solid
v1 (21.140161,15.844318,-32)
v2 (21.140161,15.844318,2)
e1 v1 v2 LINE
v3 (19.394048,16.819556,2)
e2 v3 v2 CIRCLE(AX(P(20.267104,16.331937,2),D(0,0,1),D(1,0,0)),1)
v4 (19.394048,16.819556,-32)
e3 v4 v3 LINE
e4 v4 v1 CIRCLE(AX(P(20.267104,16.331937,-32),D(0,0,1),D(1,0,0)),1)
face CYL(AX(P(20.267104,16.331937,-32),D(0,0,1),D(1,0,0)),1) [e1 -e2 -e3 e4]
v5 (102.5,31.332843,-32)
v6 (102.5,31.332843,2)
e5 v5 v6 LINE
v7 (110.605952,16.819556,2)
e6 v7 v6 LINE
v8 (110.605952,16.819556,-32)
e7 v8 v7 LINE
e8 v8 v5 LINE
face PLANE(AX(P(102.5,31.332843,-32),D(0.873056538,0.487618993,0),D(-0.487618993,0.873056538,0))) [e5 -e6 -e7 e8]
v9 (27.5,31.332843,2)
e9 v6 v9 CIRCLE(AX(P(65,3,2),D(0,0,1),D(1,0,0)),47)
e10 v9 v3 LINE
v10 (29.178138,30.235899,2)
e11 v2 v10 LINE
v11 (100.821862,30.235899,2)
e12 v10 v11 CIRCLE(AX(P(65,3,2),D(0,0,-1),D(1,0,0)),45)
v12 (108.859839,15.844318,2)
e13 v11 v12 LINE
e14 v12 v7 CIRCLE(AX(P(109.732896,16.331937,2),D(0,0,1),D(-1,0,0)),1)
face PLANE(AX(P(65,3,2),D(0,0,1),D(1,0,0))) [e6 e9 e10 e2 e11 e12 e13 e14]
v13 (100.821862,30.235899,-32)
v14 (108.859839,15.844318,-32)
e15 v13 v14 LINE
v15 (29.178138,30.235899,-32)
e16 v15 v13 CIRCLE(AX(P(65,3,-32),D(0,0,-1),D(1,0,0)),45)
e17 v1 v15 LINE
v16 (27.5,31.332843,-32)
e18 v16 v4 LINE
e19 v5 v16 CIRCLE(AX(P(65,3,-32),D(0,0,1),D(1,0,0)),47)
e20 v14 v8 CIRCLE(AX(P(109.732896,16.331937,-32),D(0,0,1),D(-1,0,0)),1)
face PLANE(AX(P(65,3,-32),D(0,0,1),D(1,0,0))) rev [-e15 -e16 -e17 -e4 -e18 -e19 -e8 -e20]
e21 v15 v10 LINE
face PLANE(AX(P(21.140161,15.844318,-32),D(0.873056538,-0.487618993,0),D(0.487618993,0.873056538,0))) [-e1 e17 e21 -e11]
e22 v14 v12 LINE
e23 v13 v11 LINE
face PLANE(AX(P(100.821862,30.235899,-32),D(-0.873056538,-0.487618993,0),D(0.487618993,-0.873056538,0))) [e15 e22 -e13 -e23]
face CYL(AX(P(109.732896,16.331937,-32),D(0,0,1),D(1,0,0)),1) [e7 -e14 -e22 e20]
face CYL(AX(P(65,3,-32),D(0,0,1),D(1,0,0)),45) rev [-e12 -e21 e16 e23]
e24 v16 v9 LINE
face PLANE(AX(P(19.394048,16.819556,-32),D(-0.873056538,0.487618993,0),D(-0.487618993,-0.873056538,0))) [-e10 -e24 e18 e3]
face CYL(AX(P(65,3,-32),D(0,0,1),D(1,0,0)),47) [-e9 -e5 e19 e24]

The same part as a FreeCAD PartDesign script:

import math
import FreeCAD as App
import Part
import Sketcher

V = App.Vector

doc = App.newDocument("Part")
body = doc.addObject("PartDesign::Body", "Body")

# Sketch on XY plane
sketch1 = body.newObject("Sketcher::SketchObject", "Sketch")
sketch1.AttachmentSupport = (doc.getObject("XY_Plane"), [""])
sketch1.MapMode = "FlatFace"
sketch1.addGeometry(Part.LineSegment(V(110.6, 16.8, 0), V(102.5, 31.3, 0)), False)
sketch1.addGeometry(Part.ArcOfCircle(Part.Circle(V(65, 3, 0), V(0, 0, 1), 47), math.radians(37), math.radians(143)), False)
sketch1.addGeometry(Part.LineSegment(V(27.5, 31.3, 0), V(19.4, 16.8, 0)), False)
sketch1.addGeometry(Part.ArcOfCircle(Part.Circle(V(20.3, 16.3, 0), V(0, 0, 1), 1), math.radians(151), math.radians(331)), False)
sketch1.addGeometry(Part.LineSegment(V(21.1, 15.8, 0), V(29.2, 30.2, 0)), False)
sketch1.addGeometry(Part.ArcOfCircle(Part.Circle(V(65, 3, 0), V(0, 0, 1), 45), math.radians(37), math.radians(143)), False)
sketch1.addGeometry(Part.LineSegment(V(100.8, 30.2, 0), V(108.9, 15.8, 0)), False)
sketch1.addGeometry(Part.ArcOfCircle(Part.Circle(V(109.7, 16.3, 0), V(0, 0, 1), 1), math.radians(-151), math.radians(29)), False)
sketch1.addConstraint(Sketcher.Constraint("Coincident", 0, 2, 1, 1))
sketch1.addConstraint(Sketcher.Constraint("Coincident", 1, 2, 2, 1))
sketch1.addConstraint(Sketcher.Constraint("Tangent", 2, 2, 3, 1))
sketch1.addConstraint(Sketcher.Constraint("Tangent", 3, 2, 4, 1))
sketch1.addConstraint(Sketcher.Constraint("Coincident", 4, 2, 5, 2))
sketch1.addConstraint(Sketcher.Constraint("Coincident", 5, 1, 6, 1))
sketch1.addConstraint(Sketcher.Constraint("Tangent", 6, 2, 7, 1))
sketch1.addConstraint(Sketcher.Constraint("Tangent", 7, 2, 0, 1))
sketch1.addConstraint(Sketcher.Constraint("Coincident", 5, 3, 1, 3))
sketch1.addConstraint(Sketcher.Constraint("Equal", 3, 7))
sketch1.addConstraint(Sketcher.Constraint("Parallel", 2, 4))
sketch1.addConstraint(Sketcher.Constraint("Parallel", 0, 6))
sketch1.addConstraint(Sketcher.Constraint("Horizontal", 3, 3, 7, 3))
sketch1.addConstraint(Sketcher.Constraint("Horizontal", 0, 2, 1, 2))
sketch1.addConstraint(Sketcher.Constraint("Horizontal", 3, 2, 6, 2))
sketch1.addConstraint(Sketcher.Constraint("Radius", 1, 47.0))
sketch1.addConstraint(Sketcher.Constraint("Radius", 3, 1.0))
sketch1.addConstraint(Sketcher.Constraint("Radius", 5, 45.0))
sketch1.addConstraint(Sketcher.Constraint("DistanceX", -1, 1, 1, 3, 65.0))
sketch1.addConstraint(Sketcher.Constraint("DistanceY", -1, 1, 1, 3, 3.0))
sketch1.addConstraint(Sketcher.Constraint("DistanceX", 1, 2, 0, 2, 75.0))
sketch1.addConstraint(Sketcher.Constraint("DistanceY", -1, 1, 4, 2, 30.235899))
sketch1.addConstraint(Sketcher.Constraint("DistanceX", -1, 1, 3, 2, 21.140161))
pad1 = body.newObject("PartDesign::Pad", "Pad")
pad1.Profile = sketch1
pad1.Type = "TwoLengths"
pad1.Length = 2
pad1.Length2 = 32

doc.recompute()
